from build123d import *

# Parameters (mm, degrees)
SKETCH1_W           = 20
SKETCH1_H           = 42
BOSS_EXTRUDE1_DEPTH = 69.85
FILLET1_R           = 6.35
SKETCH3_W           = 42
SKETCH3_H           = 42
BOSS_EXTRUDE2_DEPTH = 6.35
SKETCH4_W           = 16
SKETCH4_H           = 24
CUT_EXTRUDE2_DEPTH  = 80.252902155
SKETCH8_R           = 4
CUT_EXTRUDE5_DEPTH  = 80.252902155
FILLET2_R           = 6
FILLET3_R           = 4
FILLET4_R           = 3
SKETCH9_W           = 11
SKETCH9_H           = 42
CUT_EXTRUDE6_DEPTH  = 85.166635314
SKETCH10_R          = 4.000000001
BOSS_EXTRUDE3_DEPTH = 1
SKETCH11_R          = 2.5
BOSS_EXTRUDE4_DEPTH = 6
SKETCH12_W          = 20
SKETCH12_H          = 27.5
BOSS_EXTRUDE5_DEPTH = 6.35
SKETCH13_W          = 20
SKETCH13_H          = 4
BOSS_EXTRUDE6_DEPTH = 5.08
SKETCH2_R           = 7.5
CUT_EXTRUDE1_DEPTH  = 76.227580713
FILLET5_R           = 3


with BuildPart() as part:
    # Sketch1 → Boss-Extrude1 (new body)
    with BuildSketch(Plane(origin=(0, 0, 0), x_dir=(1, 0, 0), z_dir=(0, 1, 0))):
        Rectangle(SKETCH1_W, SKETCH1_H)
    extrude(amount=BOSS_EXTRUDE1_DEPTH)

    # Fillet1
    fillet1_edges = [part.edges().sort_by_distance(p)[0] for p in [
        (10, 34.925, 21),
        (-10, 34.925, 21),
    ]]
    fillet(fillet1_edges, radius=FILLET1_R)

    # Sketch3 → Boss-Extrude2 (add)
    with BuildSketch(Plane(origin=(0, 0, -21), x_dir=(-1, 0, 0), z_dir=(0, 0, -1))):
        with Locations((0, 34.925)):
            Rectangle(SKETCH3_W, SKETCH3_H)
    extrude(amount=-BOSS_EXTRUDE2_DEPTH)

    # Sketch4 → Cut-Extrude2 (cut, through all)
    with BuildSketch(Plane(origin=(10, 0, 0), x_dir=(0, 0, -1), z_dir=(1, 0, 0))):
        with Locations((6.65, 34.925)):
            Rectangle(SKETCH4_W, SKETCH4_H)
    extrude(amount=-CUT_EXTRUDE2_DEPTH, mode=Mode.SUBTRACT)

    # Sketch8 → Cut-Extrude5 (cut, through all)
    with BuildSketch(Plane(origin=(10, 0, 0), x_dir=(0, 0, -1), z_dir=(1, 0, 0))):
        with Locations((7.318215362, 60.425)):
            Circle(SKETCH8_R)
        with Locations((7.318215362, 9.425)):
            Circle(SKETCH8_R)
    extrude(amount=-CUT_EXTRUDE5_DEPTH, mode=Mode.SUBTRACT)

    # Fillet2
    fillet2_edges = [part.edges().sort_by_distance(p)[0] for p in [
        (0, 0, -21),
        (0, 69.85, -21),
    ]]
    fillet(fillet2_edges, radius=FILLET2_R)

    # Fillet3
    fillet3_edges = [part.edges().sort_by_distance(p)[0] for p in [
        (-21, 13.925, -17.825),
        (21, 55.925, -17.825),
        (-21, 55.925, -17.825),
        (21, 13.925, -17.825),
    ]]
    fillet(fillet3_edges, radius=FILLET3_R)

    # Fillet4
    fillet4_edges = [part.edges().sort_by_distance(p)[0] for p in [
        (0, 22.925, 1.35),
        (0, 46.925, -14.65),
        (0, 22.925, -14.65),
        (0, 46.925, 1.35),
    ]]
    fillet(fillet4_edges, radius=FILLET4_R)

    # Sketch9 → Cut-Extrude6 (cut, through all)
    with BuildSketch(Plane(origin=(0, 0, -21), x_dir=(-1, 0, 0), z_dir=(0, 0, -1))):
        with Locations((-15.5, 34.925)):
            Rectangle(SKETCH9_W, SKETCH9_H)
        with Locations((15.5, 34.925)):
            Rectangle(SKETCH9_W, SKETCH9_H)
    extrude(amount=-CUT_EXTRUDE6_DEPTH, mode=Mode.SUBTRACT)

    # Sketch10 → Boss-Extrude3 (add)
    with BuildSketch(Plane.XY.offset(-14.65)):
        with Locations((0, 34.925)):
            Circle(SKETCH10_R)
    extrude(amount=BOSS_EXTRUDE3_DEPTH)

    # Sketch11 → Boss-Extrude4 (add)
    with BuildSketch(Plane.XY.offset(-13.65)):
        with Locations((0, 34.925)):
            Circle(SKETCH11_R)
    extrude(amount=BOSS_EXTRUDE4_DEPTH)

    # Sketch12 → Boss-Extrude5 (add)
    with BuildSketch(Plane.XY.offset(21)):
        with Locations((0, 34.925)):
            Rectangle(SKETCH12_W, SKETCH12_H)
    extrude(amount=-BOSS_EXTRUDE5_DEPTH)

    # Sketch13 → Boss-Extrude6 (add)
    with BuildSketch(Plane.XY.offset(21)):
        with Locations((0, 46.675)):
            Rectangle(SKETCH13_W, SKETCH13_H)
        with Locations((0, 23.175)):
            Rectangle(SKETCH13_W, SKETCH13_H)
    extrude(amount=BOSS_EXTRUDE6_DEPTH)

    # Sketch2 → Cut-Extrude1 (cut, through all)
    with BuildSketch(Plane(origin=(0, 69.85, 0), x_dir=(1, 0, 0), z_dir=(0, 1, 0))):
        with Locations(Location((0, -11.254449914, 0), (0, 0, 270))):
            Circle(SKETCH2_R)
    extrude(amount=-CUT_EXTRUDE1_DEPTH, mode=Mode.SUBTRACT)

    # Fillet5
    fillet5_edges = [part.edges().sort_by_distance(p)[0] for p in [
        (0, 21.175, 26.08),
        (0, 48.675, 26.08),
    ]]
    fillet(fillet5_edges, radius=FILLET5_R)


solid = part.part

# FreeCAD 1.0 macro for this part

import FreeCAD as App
import Part
import Sketcher
from FreeCAD import Vector


def edges_at(feature, points):
    """Names of the edges that pass closest to the given points."""
    edges = feature.Shape.Edges
    near = lambda p: min(range(len(edges)), key=lambda i: edges[i].distToShape(Part.Vertex(*p))[0])
    return sorted({f"Edge{near(p) + 1}" for p in points})

doc = App.newDocument("Part")
body = doc.addObject("PartDesign::Body", "Body")

# Sketch on XZ plane
sketch1 = body.newObject("Sketcher::SketchObject", "Sketch")
sketch1.AttachmentSupport = (doc.getObject("XZ_Plane"), [""])
sketch1.MapMode = "FlatFace"
sketch1.addGeometry(Part.LineSegment(Vector(-10, -21, 0), Vector(-10, 21, 0)), False)
sketch1.addGeometry(Part.LineSegment(Vector(-10, 21, 0), Vector(10, 21, 0)), False)
sketch1.addGeometry(Part.LineSegment(Vector(10, 21, 0), Vector(10, -21, 0)), False)
sketch1.addGeometry(Part.LineSegment(Vector(10, -21, 0), Vector(-10, -21, 0)), False)
sketch1.addConstraint(Sketcher.Constraint("Coincident", 0, 2, 1, 1))
sketch1.addConstraint(Sketcher.Constraint("Coincident", 1, 2, 2, 1))
sketch1.addConstraint(Sketcher.Constraint("Coincident", 2, 2, 3, 1))
sketch1.addConstraint(Sketcher.Constraint("Coincident", 3, 2, 0, 1))
sketch1.addConstraint(Sketcher.Constraint("Vertical", 0))
sketch1.addConstraint(Sketcher.Constraint("Horizontal", 1))
sketch1.addConstraint(Sketcher.Constraint("Vertical", 2))
sketch1.addConstraint(Sketcher.Constraint("Horizontal", 3))
sketch1.addConstraint(Sketcher.Constraint("Symmetric", 0, 2, 2, 2, -1, 1))
sketch1.addConstraint(Sketcher.Constraint("DistanceX", 1, 1, 1, 2, 20.0))
sketch1.addConstraint(Sketcher.Constraint("DistanceY", 0, 1, 0, 2, 42.0))
pad1 = body.newObject("PartDesign::Pad", "Pad")
pad1.Profile = sketch1
pad1.Length = 69.85
pad1.Reversed = True
doc.recompute()

fillet = body.newObject("PartDesign::Fillet", "Fillet")
fillet.Base = (pad1, edges_at(pad1, [(10, 34.925, 21), (-10, 34.925, 21)]))
fillet.Radius = 6.35

# Sketch on XY plane
sketch2 = body.newObject("Sketcher::SketchObject", "Sketch001")
sketch2.AttachmentSupport = (doc.getObject("XY_Plane"), [""])
sketch2.MapMode = "FlatFace"
sketch2.AttachmentOffset = App.Placement(Vector(0, 0, -21), App.Rotation())
sketch2.addGeometry(Part.LineSegment(Vector(21, 56, 0), Vector(21, 14, 0)), False)
sketch2.addGeometry(Part.LineSegment(Vector(21, 14, 0), Vector(-21, 14, 0)), False)
sketch2.addGeometry(Part.LineSegment(Vector(-21, 14, 0), Vector(-21, 56, 0)), False)
sketch2.addGeometry(Part.LineSegment(Vector(-21, 56, 0), Vector(21, 56, 0)), False)
sketch2.addConstraint(Sketcher.Constraint("Coincident", 0, 2, 1, 1))
sketch2.addConstraint(Sketcher.Constraint("Coincident", 1, 2, 2, 1))
sketch2.addConstraint(Sketcher.Constraint("Coincident", 2, 2, 3, 1))
sketch2.addConstraint(Sketcher.Constraint("Coincident", 3, 2, 0, 1))
sketch2.addConstraint(Sketcher.Constraint("Vertical", 0))
sketch2.addConstraint(Sketcher.Constraint("Horizontal", 1))
sketch2.addConstraint(Sketcher.Constraint("Vertical", 2))
sketch2.addConstraint(Sketcher.Constraint("Horizontal", 3))
sketch2.addConstraint(Sketcher.Constraint("Equal", 3, 0))
sketch2.addConstraint(Sketcher.Constraint("DistanceX", 1, 2, 1, 1, 42.0))
sketch2.addConstraint(Sketcher.Constraint("DistanceX", -1, 1, 0, 2, 21.0))
sketch2.addConstraint(Sketcher.Constraint("DistanceY", -1, 1, 0, 2, 13.925))
pad2 = body.newObject("PartDesign::Pad", "Pad001")
pad2.Profile = sketch2
pad2.Length = 6.35

# Sketch on YZ plane
sketch3 = body.newObject("Sketcher::SketchObject", "Sketch002")
sketch3.AttachmentSupport = (doc.getObject("YZ_Plane"), [""])
sketch3.MapMode = "FlatFace"
sketch3.AttachmentOffset = App.Placement(Vector(0, 0, 10), App.Rotation())
sketch3.addGeometry(Part.LineSegment(Vector(47, 1, 0), Vector(23, 1, 0)), False)
sketch3.addGeometry(Part.LineSegment(Vector(23, 1, 0), Vector(23, -15, 0)), False)
sketch3.addGeometry(Part.LineSegment(Vector(23, -15, 0), Vector(47, -15, 0)), False)
sketch3.addGeometry(Part.LineSegment(Vector(47, -15, 0), Vector(47, 1, 0)), False)
sketch3.addConstraint(Sketcher.Constraint("Coincident", 0, 2, 1, 1))
sketch3.addConstraint(Sketcher.Constraint("Coincident", 1, 2, 2, 1))
sketch3.addConstraint(Sketcher.Constraint("Coincident", 2, 2, 3, 1))
sketch3.addConstraint(Sketcher.Constraint("Coincident", 3, 2, 0, 1))
sketch3.addConstraint(Sketcher.Constraint("Horizontal", 0))
sketch3.addConstraint(Sketcher.Constraint("Vertical", 1))
sketch3.addConstraint(Sketcher.Constraint("Horizontal", 2))
sketch3.addConstraint(Sketcher.Constraint("Vertical", 3))
sketch3.addConstraint(Sketcher.Constraint("DistanceX", 0, 2, 0, 1, 24.0))
sketch3.addConstraint(Sketcher.Constraint("DistanceY", 1, 2, 1, 1, 16.0))
sketch3.addConstraint(Sketcher.Constraint("DistanceY", -1, 1, 0, 2, 1.35))
sketch3.addConstraint(Sketcher.Constraint("DistanceX", -1, 1, 0, 2, 22.925))
pocket1 = body.newObject("PartDesign::Pocket", "Pocket")
pocket1.Profile = sketch3
pocket1.Type = "ThroughAll"

# Sketch on YZ plane
sketch4 = body.newObject("Sketcher::SketchObject", "Sketch003")
sketch4.AttachmentSupport = (doc.getObject("YZ_Plane"), [""])
sketch4.MapMode = "FlatFace"
sketch4.AttachmentOffset = App.Placement(Vector(0, 0, 10), App.Rotation())
sketch4.addGeometry(Part.Circle(Vector(60.4, -7.3, 0), Vector(0, 0, 1), 4), False)
sketch4.addGeometry(Part.Circle(Vector(9.4, -7.3, 0), Vector(0, 0, 1), 4), False)
sketch4.addConstraint(Sketcher.Constraint("Equal", 0, 1))
sketch4.addConstraint(Sketcher.Constraint("Horizontal", 0, 3, 1, 3))
sketch4.addConstraint(Sketcher.Constraint("Diameter", 0, 8.0))
sketch4.addConstraint(Sketcher.Constraint("DistanceX", 1, 3, 0, 3, 51.0))
sketch4.addConstraint(Sketcher.Constraint("DistanceX", -1, 1, 0, 3, 60.425))
sketch4.addConstraint(Sketcher.Constraint("DistanceY", 0, 3, -1, 1, 7.318215))
pocket2 = body.newObject("PartDesign::Pocket", "Pocket001")
pocket2.Profile = sketch4
pocket2.Type = "ThroughAll"
doc.recompute()

fillet2 = body.newObject("PartDesign::Fillet", "Fillet001")
fillet2.Base = (pocket2, edges_at(pocket2, [(0, 0, -21), (0, 69.85, -21)]))
fillet2.Radius = 6
doc.recompute()

fillet3 = body.newObject("PartDesign::Fillet", "Fillet002")
fillet3.Base = (fillet2, edges_at(fillet2, [
    (-21, 13.925, -17.825),
    (21, 55.925, -17.825),
    (-21, 55.925, -17.825),
    (21, 13.925, -17.825),
]))
fillet3.Radius = 4
doc.recompute()

fillet4 = body.newObject("PartDesign::Fillet", "Fillet003")
fillet4.Base = (fillet3, edges_at(fillet3, [
    (0, 22.925, 1.35),
    (0, 46.925, -14.65),
    (0, 22.925, -14.65),
    (0, 46.925, 1.35),
]))
fillet4.Radius = 3

# Sketch on XY plane
sketch5 = body.newObject("Sketcher::SketchObject", "Sketch004")
sketch5.AttachmentSupport = (doc.getObject("XY_Plane"), [""])
sketch5.MapMode = "FlatFace"
sketch5.AttachmentOffset = App.Placement(Vector(0, 0, -21), App.Rotation())
sketch5.addGeometry(Part.LineSegment(Vector(21, 56, 0), Vector(21, 14, 0)), False)
sketch5.addGeometry(Part.LineSegment(Vector(21, 14, 0), Vector(10, 14, 0)), False)
sketch5.addGeometry(Part.LineSegment(Vector(10, 14, 0), Vector(10, 56, 0)), False)
sketch5.addGeometry(Part.LineSegment(Vector(10, 56, 0), Vector(21, 56, 0)), False)
sketch5.addGeometry(Part.LineSegment(Vector(-10, 56, 0), Vector(-10, 14, 0)), False)
sketch5.addGeometry(Part.LineSegment(Vector(-10, 14, 0), Vector(-21, 14, 0)), False)
sketch5.addGeometry(Part.LineSegment(Vector(-21, 14, 0), Vector(-21, 56, 0)), False)
sketch5.addGeometry(Part.LineSegment(Vector(-21, 56, 0), Vector(-10, 56, 0)), False)
sketch5.addConstraint(Sketcher.Constraint("Coincident", 0, 2, 1, 1))
sketch5.addConstraint(Sketcher.Constraint("Coincident", 1, 2, 2, 1))
sketch5.addConstraint(Sketcher.Constraint("Coincident", 2, 2, 3, 1))
sketch5.addConstraint(Sketcher.Constraint("Coincident", 3, 2, 0, 1))
sketch5.addConstraint(Sketcher.Constraint("Coincident", 4, 2, 5, 1))
sketch5.addConstraint(Sketcher.Constraint("Coincident", 5, 2, 6, 1))
sketch5.addConstraint(Sketcher.Constraint("Coincident", 6, 2, 7, 1))
sketch5.addConstraint(Sketcher.Constraint("Coincident", 7, 2, 4, 1))
sketch5.addConstraint(Sketcher.Constraint("Vertical", 0))
sketch5.addConstraint(Sketcher.Constraint("Horizontal", 1))
sketch5.addConstraint(Sketcher.Constraint("Vertical", 2))
sketch5.addConstraint(Sketcher.Constraint("Horizontal", 3))
sketch5.addConstraint(Sketcher.Constraint("Vertical", 4))
sketch5.addConstraint(Sketcher.Constraint("Horizontal", 5))
sketch5.addConstraint(Sketcher.Constraint("Vertical", 6))
sketch5.addConstraint(Sketcher.Constraint("Horizontal", 7))
sketch5.addConstraint(Sketcher.Constraint("Symmetric", 1, 2, 4, 2, -2))
sketch5.addConstraint(Sketcher.Constraint("Symmetric", 3, 2, 6, 2, -2))
sketch5.addConstraint(Sketcher.Constraint("DistanceX", 1, 2, 1, 1, 11.0))
sketch5.addConstraint(Sketcher.Constraint("DistanceY", 0, 2, 0, 1, 42.0))
sketch5.addConstraint(Sketcher.Constraint("DistanceX", -1, 1, 0, 2, 21.0))
sketch5.addConstraint(Sketcher.Constraint("DistanceY", -1, 1, 0, 2, 13.925))
pocket3 = body.newObject("PartDesign::Pocket", "Pocket002")
pocket3.Profile = sketch5
pocket3.Type = "ThroughAll"
pocket3.Reversed = True

# Sketch on XY plane
sketch6 = body.newObject("Sketcher::SketchObject", "Sketch005")
sketch6.AttachmentSupport = (doc.getObject("XY_Plane"), [""])
sketch6.MapMode = "FlatFace"
sketch6.AttachmentOffset = App.Placement(Vector(0, 0, -14.65), App.Rotation())
sketch6.addGeometry(Part.Circle(Vector(0, 34.9, 0), Vector(0, 0, 1), 4), False)
sketch6.addConstraint(Sketcher.Constraint("PointOnObject", 0, 3, -2))
sketch6.addConstraint(Sketcher.Constraint("Diameter", 0, 8.0))
sketch6.addConstraint(Sketcher.Constraint("DistanceY", -1, 1, 0, 3, 34.925))
pad3 = body.newObject("PartDesign::Pad", "Pad002")
pad3.Profile = sketch6
pad3.Length = 1

# Sketch on XY plane
sketch7 = body.newObject("Sketcher::SketchObject", "Sketch006")
sketch7.AttachmentSupport = (doc.getObject("XY_Plane"), [""])
sketch7.MapMode = "FlatFace"
sketch7.AttachmentOffset = App.Placement(Vector(0, 0, -13.65), App.Rotation())
sketch7.addGeometry(Part.Circle(Vector(0, 34.9, 0), Vector(0, 0, 1), 2.5), False)
sketch7.addConstraint(Sketcher.Constraint("PointOnObject", 0, 3, -2))
sketch7.addConstraint(Sketcher.Constraint("Diameter", 0, 5.0))
sketch7.addConstraint(Sketcher.Constraint("DistanceY", -1, 1, 0, 3, 34.925))
pad4 = body.newObject("PartDesign::Pad", "Pad003")
pad4.Profile = sketch7
pad4.Length = 6

# Sketch on XY plane
sketch8 = body.newObject("Sketcher::SketchObject", "Sketch007")
sketch8.AttachmentSupport = (doc.getObject("XY_Plane"), [""])
sketch8.MapMode = "FlatFace"
sketch8.AttachmentOffset = App.Placement(Vector(0, 0, 21), App.Rotation())
sketch8.addGeometry(Part.LineSegment(Vector(-10, 49, 0), Vector(-10, 21, 0)), False)
sketch8.addGeometry(Part.LineSegment(Vector(-10, 21, 0), Vector(10, 21, 0)), False)
sketch8.addGeometry(Part.LineSegment(Vector(10, 21, 0), Vector(10, 49, 0)), False)
sketch8.addGeometry(Part.LineSegment(Vector(10, 49, 0), Vector(-10, 49, 0)), False)
sketch8.addConstraint(Sketcher.Constraint("Coincident", 0, 2, 1, 1))
sketch8.addConstraint(Sketcher.Constraint("Coincident", 1, 2, 2, 1))
sketch8.addConstraint(Sketcher.Constraint("Coincident", 2, 2, 3, 1))
sketch8.addConstraint(Sketcher.Constraint("Coincident", 3, 2, 0, 1))
sketch8.addConstraint(Sketcher.Constraint("Vertical", 0))
sketch8.addConstraint(Sketcher.Constraint("Horizontal", 1))
sketch8.addConstraint(Sketcher.Constraint("Vertical", 2))
sketch8.addConstraint(Sketcher.Constraint("Horizontal", 3))
sketch8.addConstraint(Sketcher.Constraint("DistanceX", 1, 1, 1, 2, 20.0))
sketch8.addConstraint(Sketcher.Constraint("DistanceY", 0, 2, 0, 1, 27.5))
sketch8.addConstraint(Sketcher.Constraint("DistanceX", 0, 2, -1, 1, 10.0))
sketch8.addConstraint(Sketcher.Constraint("DistanceY", -1, 1, 0, 2, 21.175))
pad5 = body.newObject("PartDesign::Pad", "Pad004")
pad5.Profile = sketch8
pad5.Length = 6.35
pad5.Reversed = True

# Sketch on XY plane
sketch9 = body.newObject("Sketcher::SketchObject", "Sketch008")
sketch9.AttachmentSupport = (doc.getObject("XY_Plane"), [""])
sketch9.MapMode = "FlatFace"
sketch9.AttachmentOffset = App.Placement(Vector(0, 0, 21), App.Rotation())
sketch9.addGeometry(Part.LineSegment(Vector(-10, 48.7, 0), Vector(-10, 44.7, 0)), False)
sketch9.addGeometry(Part.LineSegment(Vector(-10, 44.7, 0), Vector(10, 44.7, 0)), False)
sketch9.addGeometry(Part.LineSegment(Vector(10, 44.7, 0), Vector(10, 48.7, 0)), False)
sketch9.addGeometry(Part.LineSegment(Vector(10, 48.7, 0), Vector(-10, 48.7, 0)), False)
sketch9.addGeometry(Part.LineSegment(Vector(-10, 25.2, 0), Vector(-10, 21.2, 0)), False)
sketch9.addGeometry(Part.LineSegment(Vector(-10, 21.2, 0), Vector(10, 21.2, 0)), False)
sketch9.addGeometry(Part.LineSegment(Vector(10, 21.2, 0), Vector(10, 25.2, 0)), False)
sketch9.addGeometry(Part.LineSegment(Vector(10, 25.2, 0), Vector(-10, 25.2, 0)), False)
sketch9.addConstraint(Sketcher.Constraint("Coincident", 0, 2, 1, 1))
sketch9.addConstraint(Sketcher.Constraint("Coincident", 1, 2, 2, 1))
sketch9.addConstraint(Sketcher.Constraint("Coincident", 2, 2, 3, 1))
sketch9.addConstraint(Sketcher.Constraint("Coincident", 3, 2, 0, 1))
sketch9.addConstraint(Sketcher.Constraint("Coincident", 4, 2, 5, 1))
sketch9.addConstraint(Sketcher.Constraint("Coincident", 5, 2, 6, 1))
sketch9.addConstraint(Sketcher.Constraint("Coincident", 6, 2, 7, 1))
sketch9.addConstraint(Sketcher.Constraint("Coincident", 7, 2, 4, 1))
sketch9.addConstraint(Sketcher.Constraint("Vertical", 0))
sketch9.addConstraint(Sketcher.Constraint("Horizontal", 1))
sketch9.addConstraint(Sketcher.Constraint("Vertical", 2))
sketch9.addConstraint(Sketcher.Constraint("Horizontal", 3))
sketch9.addConstraint(Sketcher.Constraint("Vertical", 4))
sketch9.addConstraint(Sketcher.Constraint("Horizontal", 5))
sketch9.addConstraint(Sketcher.Constraint("Vertical", 6))
sketch9.addConstraint(Sketcher.Constraint("Horizontal", 7))
sketch9.addConstraint(Sketcher.Constraint("Vertical", 3, 2, 4, 2))
sketch9.addConstraint(Sketcher.Constraint("Vertical", 2, 2, 5, 2))
sketch9.addConstraint(Sketcher.Constraint("Equal", 2, 4))
sketch9.addConstraint(Sketcher.Constraint("DistanceX", 1, 1, 1, 2, 20.0))
sketch9.addConstraint(Sketcher.Constraint("DistanceY", 0, 2, 0, 1, 4.0))
sketch9.addConstraint(Sketcher.Constraint("DistanceX", 0, 2, -1, 1, 10.0))
sketch9.addConstraint(Sketcher.Constraint("DistanceY", 4, 2, 0, 2, 23.5))
sketch9.addConstraint(Sketcher.Constraint("DistanceY", -1, 1, 0, 2, 44.675))
pad6 = body.newObject("PartDesign::Pad", "Pad005")
pad6.Profile = sketch9
pad6.Length = 5.08

# Sketch on XZ plane
sketch10 = body.newObject("Sketcher::SketchObject", "Sketch009")
sketch10.AttachmentSupport = (doc.getObject("XZ_Plane"), [""])
sketch10.MapMode = "FlatFace"
sketch10.AttachmentOffset = App.Placement(Vector(0, 0, -69.85), App.Rotation())
sketch10.addGeometry(Part.Circle(Vector(0, 11, 0), Vector(0, 0, 1), 8), False)
sketch10.addConstraint(Sketcher.Constraint("PointOnObject", 0, 3, -2))
sketch10.addConstraint(Sketcher.Constraint("Diameter", 0, 15.0))
sketch10.addConstraint(Sketcher.Constraint("DistanceY", -1, 1, 0, 3, 11.25445))
pocket4 = body.newObject("PartDesign::Pocket", "Pocket003")
pocket4.Profile = sketch10
pocket4.Type = "ThroughAll"
pocket4.Reversed = True
doc.recompute()

fillet5 = body.newObject("PartDesign::Fillet", "Fillet004")
fillet5.Base = (pocket4, edges_at(pocket4, [(0, 21.175, 26.08), (0, 48.675, 26.08)]))
fillet5.Radius = 3

doc.recompute()
